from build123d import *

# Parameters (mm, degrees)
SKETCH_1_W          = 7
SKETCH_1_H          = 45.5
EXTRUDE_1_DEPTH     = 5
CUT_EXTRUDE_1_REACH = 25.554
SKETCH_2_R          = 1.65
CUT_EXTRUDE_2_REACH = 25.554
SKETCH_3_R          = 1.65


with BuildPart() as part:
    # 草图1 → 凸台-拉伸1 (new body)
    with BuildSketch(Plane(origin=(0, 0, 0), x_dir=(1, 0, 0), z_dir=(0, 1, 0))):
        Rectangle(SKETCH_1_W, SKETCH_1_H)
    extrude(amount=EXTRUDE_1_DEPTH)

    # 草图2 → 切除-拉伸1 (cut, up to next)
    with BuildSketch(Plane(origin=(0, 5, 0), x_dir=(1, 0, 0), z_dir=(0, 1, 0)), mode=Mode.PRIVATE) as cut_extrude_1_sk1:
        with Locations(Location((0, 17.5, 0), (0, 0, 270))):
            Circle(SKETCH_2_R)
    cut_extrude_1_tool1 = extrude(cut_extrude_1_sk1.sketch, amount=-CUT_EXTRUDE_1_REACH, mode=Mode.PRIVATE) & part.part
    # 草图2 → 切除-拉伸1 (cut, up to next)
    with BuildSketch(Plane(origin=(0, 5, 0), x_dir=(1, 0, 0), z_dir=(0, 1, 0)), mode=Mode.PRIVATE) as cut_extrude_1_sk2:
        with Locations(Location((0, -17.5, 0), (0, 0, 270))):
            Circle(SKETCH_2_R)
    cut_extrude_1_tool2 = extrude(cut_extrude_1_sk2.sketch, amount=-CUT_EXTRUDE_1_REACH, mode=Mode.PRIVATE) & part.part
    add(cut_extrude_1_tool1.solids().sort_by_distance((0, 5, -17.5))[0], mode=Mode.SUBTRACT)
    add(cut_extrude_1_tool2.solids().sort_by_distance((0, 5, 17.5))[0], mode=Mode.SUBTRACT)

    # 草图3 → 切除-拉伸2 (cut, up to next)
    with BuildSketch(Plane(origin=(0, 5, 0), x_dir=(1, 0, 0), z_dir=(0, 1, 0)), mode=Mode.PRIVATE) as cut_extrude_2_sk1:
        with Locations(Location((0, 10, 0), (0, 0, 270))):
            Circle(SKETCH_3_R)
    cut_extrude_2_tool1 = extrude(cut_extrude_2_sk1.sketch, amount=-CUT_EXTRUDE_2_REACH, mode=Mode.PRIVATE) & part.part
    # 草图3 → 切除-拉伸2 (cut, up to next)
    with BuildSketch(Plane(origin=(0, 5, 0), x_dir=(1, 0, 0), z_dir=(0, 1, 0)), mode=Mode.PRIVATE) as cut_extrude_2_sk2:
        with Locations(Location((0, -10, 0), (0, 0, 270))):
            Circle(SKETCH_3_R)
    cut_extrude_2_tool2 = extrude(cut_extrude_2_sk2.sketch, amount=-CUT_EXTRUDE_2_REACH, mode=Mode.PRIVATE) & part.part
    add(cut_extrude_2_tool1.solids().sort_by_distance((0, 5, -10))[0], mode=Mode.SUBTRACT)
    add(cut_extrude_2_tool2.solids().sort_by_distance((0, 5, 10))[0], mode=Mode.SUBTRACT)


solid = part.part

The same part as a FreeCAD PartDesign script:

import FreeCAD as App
import Part
import Sketcher

V = App.Vector
Q = App.Units.Quantity


def add_polygon(sketch, points):
    """Adds a closed chain of lines whose ends are joined by coincident constraints."""
    first, n = sketch.GeometryCount, len(points)
    for a, b in zip(points, points[1:] + points[:1]):
        sketch.addGeometry(Part.LineSegment(App.Vector(*a, 0), App.Vector(*b, 0)), False)
    for i in range(n):
        sketch.addConstraint(Sketcher.Constraint("Coincident", first + i, 2, first + (i + 1) % n, 1))

doc = App.newDocument("Part")
body = doc.addObject("PartDesign::Body", "Body")

sketch1 = body.newObject("Sketcher::SketchObject", "Sketch")
sketch1.AttachmentSupport = (doc.getObject("XZ_Plane"), [""])
sketch1.MapMode = "FlatFace"
add_polygon(sketch1, [(-3.5, -22.75), (-3.5, 22.75), (3.5, 22.75), (3.5, -22.75)])
sketch1.addConstraint(Sketcher.Constraint("Vertical", 0))
sketch1.addConstraint(Sketcher.Constraint("Horizontal", 1))
sketch1.addConstraint(Sketcher.Constraint("Vertical", 2))
sketch1.addConstraint(Sketcher.Constraint("Horizontal", 3))
sketch1.addConstraint(Sketcher.Constraint("Symmetric", 0, 2, 2, 2, -1, 1))
sketch1.addConstraint(Sketcher.Constraint("DistanceX", 1, 1, 1, 2, Q("7 mm")))
sketch1.addConstraint(Sketcher.Constraint("DistanceY", 0, 1, 0, 2, Q("45.5 mm")))
pad1 = body.newObject("PartDesign::Pad", "Pad")
pad1.Profile = sketch1
pad1.Length = 5
pad1.Reversed = True

sketch2 = body.newObject("Sketcher::SketchObject", "Sketch001")
sketch2.AttachmentSupport = (doc.getObject("XZ_Plane"), [""])
sketch2.MapMode = "FlatFace"
sketch2.AttachmentOffset = App.Placement(V(0, 0, -5), App.Rotation())
sketch2.addGeometry(Part.Circle(V(0, -17.5, 0), V(0, 0, 1), 1.65), False)
sketch2.addConstraint(Sketcher.Constraint("PointOnObject", 0, 3, -2))
sketch2.addConstraint(Sketcher.Constraint("Diameter", 0, Q("3.3 mm")))
sketch2.addConstraint(Sketcher.Constraint("DistanceY", 0, 3, -1, 1, Q("17.5 mm")))
pocket1 = body.newObject("PartDesign::Pocket", "Pocket")
pocket1.Profile = sketch2
pocket1.Type = "UpToFirst"
pocket1.Reversed = True

sketch3 = body.newObject("Sketcher::SketchObject", "Sketch002")
sketch3.AttachmentSupport = (doc.getObject("XZ_Plane"), [""])
sketch3.MapMode = "FlatFace"
sketch3.AttachmentOffset = App.Placement(V(0, 0, -5), App.Rotation())
sketch3.addGeometry(Part.Circle(V(0, 17.5, 0), V(0, 0, 1), 1.65), False)
sketch3.addConstraint(Sketcher.Constraint("PointOnObject", 0, 3, -2))
sketch3.addConstraint(Sketcher.Constraint("Diameter", 0, Q("3.3 mm")))
sketch3.addConstraint(Sketcher.Constraint("DistanceY", -1, 1, 0, 3, Q("17.5 mm")))
pocket2 = body.newObject("PartDesign::Pocket", "Pocket001")
pocket2.Profile = sketch3
pocket2.Type = "UpToFirst"
pocket2.Reversed = True

sketch4 = body.newObject("Sketcher::SketchObject", "Sketch003")
sketch4.AttachmentSupport = (doc.getObject("XZ_Plane"), [""])
sketch4.MapMode = "FlatFace"
sketch4.AttachmentOffset = App.Placement(V(0, 0, -5), App.Rotation())
sketch4.addGeometry(Part.Circle(V(0, -10, 0), V(0, 0, 1), 1.65), False)
sketch4.addConstraint(Sketcher.Constraint("PointOnObject", 0, 3, -2))
sketch4.addConstraint(Sketcher.Constraint("Diameter", 0, Q("3.3 mm")))
sketch4.addConstraint(Sketcher.Constraint("DistanceY", 0, 3, -1, 1, Q("10 mm")))
pocket3 = body.newObject("PartDesign::Pocket", "Pocket002")
pocket3.Profile = sketch4
pocket3.Type = "UpToFirst"
pocket3.Reversed = True

sketch5 = body.newObject("Sketcher::SketchObject", "Sketch004")
sketch5.AttachmentSupport = (doc.getObject("XZ_Plane"), [""])
sketch5.MapMode = "FlatFace"
sketch5.AttachmentOffset = App.Placement(V(0, 0, -5), App.Rotation())
sketch5.addGeometry(Part.Circle(V(0, 10, 0), V(0, 0, 1), 1.65), False)
sketch5.addConstraint(Sketcher.Constraint("PointOnObject", 0, 3, -2))
sketch5.addConstraint(Sketcher.Constraint("Diameter", 0, Q("3.3 mm")))
sketch5.addConstraint(Sketcher.Constraint("DistanceY", -1, 1, 0, 3, Q("10 mm")))
pocket4 = body.newObject("PartDesign::Pocket", "Pocket003")
pocket4.Profile = sketch5
pocket4.Type = "UpToFirst"
pocket4.Reversed = True

doc.recompute()
